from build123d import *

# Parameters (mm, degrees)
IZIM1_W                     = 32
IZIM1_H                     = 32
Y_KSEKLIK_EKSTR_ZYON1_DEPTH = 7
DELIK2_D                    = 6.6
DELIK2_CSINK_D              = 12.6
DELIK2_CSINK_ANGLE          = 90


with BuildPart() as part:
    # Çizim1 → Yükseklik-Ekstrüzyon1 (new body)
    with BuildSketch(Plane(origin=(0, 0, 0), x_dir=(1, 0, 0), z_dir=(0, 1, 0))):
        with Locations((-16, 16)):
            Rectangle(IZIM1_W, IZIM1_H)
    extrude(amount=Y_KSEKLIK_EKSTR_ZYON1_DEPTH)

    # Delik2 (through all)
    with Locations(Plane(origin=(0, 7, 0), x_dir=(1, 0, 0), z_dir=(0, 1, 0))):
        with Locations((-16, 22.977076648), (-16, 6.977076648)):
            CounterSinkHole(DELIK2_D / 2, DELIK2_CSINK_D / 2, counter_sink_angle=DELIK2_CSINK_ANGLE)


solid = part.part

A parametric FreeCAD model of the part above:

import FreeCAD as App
import Part
import Sketcher
from FreeCAD import Vector
Q = App.Units.Quantity


def add_polygon(sketch, points):
    """Adds a closed chain of lines whose ends are joined by coincident constraints."""
    first, n = sketch.GeometryCount, len(points)
    for a, b in zip(points, points[1:] + points[:1]):
        sketch.addGeometry(Part.LineSegment(App.Vector(*a, 0), App.Vector(*b, 0)), False)
    for i in range(n):
        sketch.addConstraint(Sketcher.Constraint("Coincident", first + i, 2, first + (i + 1) % n, 1))

doc = App.newDocument("Part")
body = doc.addObject("PartDesign::Body", "Body")

sketch1 = doc.addObject("Sketcher::SketchObject", "Sketch")
body.addObject(sketch1)
sketch1.AttachmentSupport = (doc.XZ_Plane, [""])
sketch1.MapMode = "FlatFace"
add_polygon(sketch1, [(-32, -32), (-32, 0), (0, 0), (0, -32)])
sketch1.addConstraint([
    Sketcher.Constraint("Vertical", 0),
    Sketcher.Constraint("Horizontal", 1),
    Sketcher.Constraint("Vertical", 2),
    Sketcher.Constraint("Horizontal", 3),
    Sketcher.Constraint("Coincident", 1, 2, -1, 1),
    Sketcher.Constraint("Equal", 3, 0),
    Sketcher.Constraint("DistanceX", 1, 1, 1, 2, Q("32 mm")),
])
pad1 = doc.addObject("PartDesign::Pad", "Pad")
body.addObject(pad1)
pad1.Profile = sketch1
pad1.Length = 7
pad1.Reversed = True

sketch2 = doc.addObject("Sketcher::SketchObject", "Sketch001")
body.addObject(sketch2)
sketch2.AttachmentSupport = (doc.XZ_Plane, [""])
sketch2.MapMode = "FlatFace"
sketch2.AttachmentOffset = App.Placement(Vector(0, 0, -7), App.Rotation())
sketch2.addGeometry([
    Part.Circle(Vector(-16, -22.977077, 0), Vector(0, 0, 1), 3.3),
    Part.Circle(Vector(-16, -6.977077, 0), Vector(0, 0, 1), 3.3),
], False)
sketch2.addConstraint([
    Sketcher.Constraint("Equal", 0, 1),
    Sketcher.Constraint("Vertical", 0, 3, 1, 3),
    Sketcher.Constraint("Diameter", 0, Q("6.6 mm")),
    Sketcher.Constraint("DistanceX", 0, 3, -1, 1, Q("16 mm")),
    Sketcher.Constraint("DistanceY", 0, 3, 1, 3, Q("16 mm")),
    Sketcher.Constraint("DistanceY", 0, 3, -1, 1, Q("22.977077 mm")),
])
doc.recompute()
hole = doc.addObject("PartDesign::Hole", "Hole")
body.addObject(hole)
hole.Profile = sketch2
hole.ThreadType = "None"
hole.Diameter = 6.6
hole.DepthType = "ThroughAll"
hole.HoleCutType = "Countersink"
hole.HoleCutDiameter = 12.6
hole.HoleCutCountersinkAngle = 90
hole.Reversed = True

doc.recompute()
